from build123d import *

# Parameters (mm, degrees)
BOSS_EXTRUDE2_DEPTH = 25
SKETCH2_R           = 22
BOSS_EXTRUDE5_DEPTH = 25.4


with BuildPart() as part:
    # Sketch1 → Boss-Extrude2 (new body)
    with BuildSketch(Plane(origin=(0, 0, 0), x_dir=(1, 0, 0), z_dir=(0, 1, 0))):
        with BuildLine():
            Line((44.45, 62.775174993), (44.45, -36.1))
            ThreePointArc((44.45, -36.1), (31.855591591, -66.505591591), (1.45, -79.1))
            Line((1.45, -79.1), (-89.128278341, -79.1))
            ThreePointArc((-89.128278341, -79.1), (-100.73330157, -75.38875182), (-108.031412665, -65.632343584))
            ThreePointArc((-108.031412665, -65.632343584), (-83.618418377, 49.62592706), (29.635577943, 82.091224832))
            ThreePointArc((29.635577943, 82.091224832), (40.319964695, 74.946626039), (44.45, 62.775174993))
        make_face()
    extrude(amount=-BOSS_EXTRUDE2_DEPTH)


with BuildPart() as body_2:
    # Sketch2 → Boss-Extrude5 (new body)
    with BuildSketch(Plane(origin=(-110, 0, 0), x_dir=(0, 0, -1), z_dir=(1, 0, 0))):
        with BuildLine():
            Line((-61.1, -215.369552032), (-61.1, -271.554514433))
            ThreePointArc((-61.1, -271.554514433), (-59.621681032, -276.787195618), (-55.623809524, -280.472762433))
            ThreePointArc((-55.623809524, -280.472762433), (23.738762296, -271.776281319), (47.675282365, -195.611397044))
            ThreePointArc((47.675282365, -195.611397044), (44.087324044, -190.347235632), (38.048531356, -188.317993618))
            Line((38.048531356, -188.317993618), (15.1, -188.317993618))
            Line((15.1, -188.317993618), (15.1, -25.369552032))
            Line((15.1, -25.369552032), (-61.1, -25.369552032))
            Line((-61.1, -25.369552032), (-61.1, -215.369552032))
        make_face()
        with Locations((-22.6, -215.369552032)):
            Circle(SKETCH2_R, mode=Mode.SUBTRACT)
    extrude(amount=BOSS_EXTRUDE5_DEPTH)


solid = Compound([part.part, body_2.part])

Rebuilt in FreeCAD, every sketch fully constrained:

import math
import FreeCAD as App
import Part
import Sketcher
from FreeCAD import Vector

doc = App.newDocument("Part")
body = doc.addObject("PartDesign::Body", "Body")

# Sketch on XZ plane
sketch1 = body.newObject("Sketcher::SketchObject", "Sketch")
sketch1.AttachmentSupport = (doc.getObject("XZ_Plane"), [""])
sketch1.MapMode = "FlatFace"
sketch1.addGeometry(Part.LineSegment(Vector(44, 36, 0), Vector(44, -63, 0)), False)
sketch1.addGeometry(Part.ArcOfCircle(Part.Circle(Vector(24, -63, 0), Vector(0, 0, 1), 20), math.radians(-75), math.radians(0)), False)
sketch1.addGeometry(Part.ArcOfCircle(Part.Circle(Vector(0, 28, 0), Vector(0, 0, 1), 114), math.radians(161), math.radians(285)), False)
sketch1.addGeometry(Part.ArcOfCircle(Part.Circle(Vector(-89, 59, 0), Vector(0, 0, 1), 20), math.radians(90), math.radians(161)), False)
sketch1.addGeometry(Part.LineSegment(Vector(-89, 79, 0), Vector(1, 79, 0)), False)
sketch1.addGeometry(Part.ArcOfCircle(Part.Circle(Vector(1, 36, 0), Vector(0, 0, 1), 43), math.radians(0), math.radians(90)), False)
sketch1.addConstraint(Sketcher.Constraint("Tangent", 0, 2, 1, 2))
sketch1.addConstraint(Sketcher.Constraint("Tangent", 1, 1, 2, 2))
sketch1.addConstraint(Sketcher.Constraint("Tangent", 2, 1, 3, 2))
sketch1.addConstraint(Sketcher.Constraint("Tangent", 3, 1, 4, 1))
sketch1.addConstraint(Sketcher.Constraint("Tangent", 4, 2, 5, 2))
sketch1.addConstraint(Sketcher.Constraint("Tangent", 5, 1, 0, 1))
sketch1.addConstraint(Sketcher.Constraint("Vertical", 0))
sketch1.addConstraint(Sketcher.Constraint("Horizontal", 4))
sketch1.addConstraint(Sketcher.Constraint("Equal", 1, 3))
sketch1.addConstraint(Sketcher.Constraint("PointOnObject", 2, 3, -2))
sketch1.addConstraint(Sketcher.Constraint("Radius", 1, 20.0))
sketch1.addConstraint(Sketcher.Constraint("Radius", 5, 43.0))
sketch1.addConstraint(Sketcher.Constraint("Radius", 2, 114.3))
sketch1.addConstraint(Sketcher.Constraint("DistanceY", -1, 1, 2, 3, 28.3))
sketch1.addConstraint(Sketcher.Constraint("DistanceY", -1, 1, 3, 3, 59.1))
sketch1.addConstraint(Sketcher.Constraint("DistanceX", -1, 1, 1, 3, 24.45))
pad1 = body.newObject("PartDesign::Pad", "Pad")
pad1.Profile = sketch1
pad1.Length = 25
body2 = doc.addObject("PartDesign::Body", "Body001")

# Sketch on YZ plane
sketch2 = body2.newObject("Sketcher::SketchObject", "Sketch001")
sketch2.AttachmentSupport = (doc.getObject("YZ_Plane001"), [""])
sketch2.MapMode = "FlatFace"
sketch2.AttachmentOffset = App.Placement(Vector(0, 0, -110), App.Rotation())
sketch2.addGeometry(Part.ArcOfCircle(Part.Circle(Vector(-272, 51, 0), Vector(0, 0, 1), 10), math.radians(90), math.radians(153)), False)
sketch2.addGeometry(Part.ArcOfCircle(Part.Circle(Vector(-215, 23, 0), Vector(0, 0, 1), 73), math.radians(153), math.radians(286)), False)
sketch2.addGeometry(Part.ArcOfCircle(Part.Circle(Vector(-198, -38, 0), Vector(0, 0, 1), 10), math.radians(-74), math.radians(0)), False)
sketch2.addGeometry(Part.LineSegment(Vector(-188, -38, 0), Vector(-188, -15, 0)), False)
sketch2.addGeometry(Part.LineSegment(Vector(-188, -15, 0), Vector(-25, -15, 0)), False)
sketch2.addGeometry(Part.LineSegment(Vector(-25, -15, 0), Vector(-25, 61, 0)), False)
sketch2.addGeometry(Part.LineSegment(Vector(-25, 61, 0), Vector(-272, 61, 0)), False)
sketch2.addGeometry(Part.Circle(Vector(-215, 23, 0), Vector(0, 0, 1), 22), False)
sketch2.addConstraint(Sketcher.Constraint("Tangent", 0, 2, 1, 1))
sketch2.addConstraint(Sketcher.Constraint("Tangent", 1, 2, 2, 1))
sketch2.addConstraint(Sketcher.Constraint("Tangent", 2, 2, 3, 1))
sketch2.addConstraint(Sketcher.Constraint("Coincident", 3, 2, 4, 1))
sketch2.addConstraint(Sketcher.Constraint("Coincident", 4, 2, 5, 1))
sketch2.addConstraint(Sketcher.Constraint("Coincident", 5, 2, 6, 1))
sketch2.addConstraint(Sketcher.Constraint("Tangent", 6, 2, 0, 1))
sketch2.addConstraint(Sketcher.Constraint("Vertical", 3))
sketch2.addConstraint(Sketcher.Constraint("Horizontal", 4))
sketch2.addConstraint(Sketcher.Constraint("Vertical", 5))
sketch2.addConstraint(Sketcher.Constraint("Horizontal", 6))
sketch2.addConstraint(Sketcher.Constraint("Coincident", 7, 3, 1, 3))
sketch2.addConstraint(Sketcher.Constraint("Equal", 0, 2))
sketch2.addConstraint(Sketcher.Constraint("Diameter", 7, 44.0))
sketch2.addConstraint(Sketcher.Constraint("Radius", 0, 10.0))
sketch2.addConstraint(Sketcher.Constraint("Radius", 1, 73.0))
sketch2.addConstraint(Sketcher.Constraint("DistanceY", 5, 1, 5, 2, 76.2))
sketch2.addConstraint(Sketcher.Constraint("DistanceX", 1, 3, 4, 2, 190.0))
sketch2.addConstraint(Sketcher.Constraint("DistanceY", -1, 1, 0, 3, 51.1))
sketch2.addConstraint(Sketcher.Constraint("DistanceY", -1, 1, 1, 3, 22.6))
sketch2.addConstraint(Sketcher.Constraint("DistanceX", 4, 1, 4, 2, 162.948442))
sketch2.addConstraint(Sketcher.Constraint("DistanceX", 0, 3, -1, 1, 271.554514))
pad2 = body2.newObject("PartDesign::Pad", "Pad001")
pad2.Profile = sketch2
pad2.Length = 25.4

doc.recompute()
